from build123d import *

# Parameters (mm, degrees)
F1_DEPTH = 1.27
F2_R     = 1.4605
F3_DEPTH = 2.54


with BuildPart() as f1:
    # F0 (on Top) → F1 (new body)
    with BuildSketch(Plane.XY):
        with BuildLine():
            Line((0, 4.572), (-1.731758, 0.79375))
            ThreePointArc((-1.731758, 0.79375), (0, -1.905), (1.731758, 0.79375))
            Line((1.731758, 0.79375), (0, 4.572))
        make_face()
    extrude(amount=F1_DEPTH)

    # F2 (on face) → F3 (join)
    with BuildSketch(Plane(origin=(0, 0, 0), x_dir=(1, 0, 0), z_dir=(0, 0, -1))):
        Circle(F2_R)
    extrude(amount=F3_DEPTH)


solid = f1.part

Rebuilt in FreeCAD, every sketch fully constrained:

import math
import FreeCAD as App
import Part
import Sketcher
from FreeCAD import Vector
Q = App.Units.Quantity

doc = App.newDocument("Part")
body = doc.addObject("PartDesign::Body", "Body")

# Sketch on XY plane
sketch1 = body.newObject("Sketcher::SketchObject", "Sketch")
sketch1.AttachmentSupport = (doc.getObject("XY_Plane"), [""])
sketch1.MapMode = "FlatFace"
sketch1.addGeometry([
    Part.LineSegment(Vector(0, 4.572, 0), Vector(-1.731758, 0.79375, 0)),
    Part.ArcOfCircle(Part.Circle(Vector(0, 0, 0), Vector(0, 0, 1), 1.905), math.radians(155.37568), math.radians(384.62432)),
    Part.LineSegment(Vector(1.731758, 0.79375, 0), Vector(0, 4.572, 0)),
], False)
sketch1.addConstraint([
    Sketcher.Constraint("Tangent", 0, 2, 1, 1),
    Sketcher.Constraint("Tangent", 1, 2, 2, 1),
    Sketcher.Constraint("Coincident", 2, 2, 0, 1),
    Sketcher.Constraint("Coincident", 1, 3, -1, 1),
    Sketcher.Constraint("PointOnObject", 2, 2, -2),
    Sketcher.Constraint("Radius", 1, Q("0.075 in")),
    Sketcher.Constraint("DistanceY", -1, 1, 2, 2, Q("0.18 in")),
])
pad1 = body.newObject("PartDesign::Pad", "Pad")
pad1.Profile = sketch1
pad1.Length = Q("0.05 in")

# Sketch on XY plane
sketch2 = body.newObject("Sketcher::SketchObject", "Sketch001")
sketch2.AttachmentSupport = (doc.getObject("XY_Plane"), [""])
sketch2.MapMode = "FlatFace"
sketch2.addGeometry(Part.Circle(Vector(0, 0, 0), Vector(0, 0, 1), 1.4605), False)
sketch2.addConstraint([
    Sketcher.Constraint("Coincident", 0, 3, -1, 1),
    Sketcher.Constraint("Diameter", 0, Q("0.115 in")),
])
pad2 = body.newObject("PartDesign::Pad", "Pad001")
pad2.Profile = sketch2
pad2.Length = Q("0.1 in")
pad2.Reversed = True

doc.recompute()
